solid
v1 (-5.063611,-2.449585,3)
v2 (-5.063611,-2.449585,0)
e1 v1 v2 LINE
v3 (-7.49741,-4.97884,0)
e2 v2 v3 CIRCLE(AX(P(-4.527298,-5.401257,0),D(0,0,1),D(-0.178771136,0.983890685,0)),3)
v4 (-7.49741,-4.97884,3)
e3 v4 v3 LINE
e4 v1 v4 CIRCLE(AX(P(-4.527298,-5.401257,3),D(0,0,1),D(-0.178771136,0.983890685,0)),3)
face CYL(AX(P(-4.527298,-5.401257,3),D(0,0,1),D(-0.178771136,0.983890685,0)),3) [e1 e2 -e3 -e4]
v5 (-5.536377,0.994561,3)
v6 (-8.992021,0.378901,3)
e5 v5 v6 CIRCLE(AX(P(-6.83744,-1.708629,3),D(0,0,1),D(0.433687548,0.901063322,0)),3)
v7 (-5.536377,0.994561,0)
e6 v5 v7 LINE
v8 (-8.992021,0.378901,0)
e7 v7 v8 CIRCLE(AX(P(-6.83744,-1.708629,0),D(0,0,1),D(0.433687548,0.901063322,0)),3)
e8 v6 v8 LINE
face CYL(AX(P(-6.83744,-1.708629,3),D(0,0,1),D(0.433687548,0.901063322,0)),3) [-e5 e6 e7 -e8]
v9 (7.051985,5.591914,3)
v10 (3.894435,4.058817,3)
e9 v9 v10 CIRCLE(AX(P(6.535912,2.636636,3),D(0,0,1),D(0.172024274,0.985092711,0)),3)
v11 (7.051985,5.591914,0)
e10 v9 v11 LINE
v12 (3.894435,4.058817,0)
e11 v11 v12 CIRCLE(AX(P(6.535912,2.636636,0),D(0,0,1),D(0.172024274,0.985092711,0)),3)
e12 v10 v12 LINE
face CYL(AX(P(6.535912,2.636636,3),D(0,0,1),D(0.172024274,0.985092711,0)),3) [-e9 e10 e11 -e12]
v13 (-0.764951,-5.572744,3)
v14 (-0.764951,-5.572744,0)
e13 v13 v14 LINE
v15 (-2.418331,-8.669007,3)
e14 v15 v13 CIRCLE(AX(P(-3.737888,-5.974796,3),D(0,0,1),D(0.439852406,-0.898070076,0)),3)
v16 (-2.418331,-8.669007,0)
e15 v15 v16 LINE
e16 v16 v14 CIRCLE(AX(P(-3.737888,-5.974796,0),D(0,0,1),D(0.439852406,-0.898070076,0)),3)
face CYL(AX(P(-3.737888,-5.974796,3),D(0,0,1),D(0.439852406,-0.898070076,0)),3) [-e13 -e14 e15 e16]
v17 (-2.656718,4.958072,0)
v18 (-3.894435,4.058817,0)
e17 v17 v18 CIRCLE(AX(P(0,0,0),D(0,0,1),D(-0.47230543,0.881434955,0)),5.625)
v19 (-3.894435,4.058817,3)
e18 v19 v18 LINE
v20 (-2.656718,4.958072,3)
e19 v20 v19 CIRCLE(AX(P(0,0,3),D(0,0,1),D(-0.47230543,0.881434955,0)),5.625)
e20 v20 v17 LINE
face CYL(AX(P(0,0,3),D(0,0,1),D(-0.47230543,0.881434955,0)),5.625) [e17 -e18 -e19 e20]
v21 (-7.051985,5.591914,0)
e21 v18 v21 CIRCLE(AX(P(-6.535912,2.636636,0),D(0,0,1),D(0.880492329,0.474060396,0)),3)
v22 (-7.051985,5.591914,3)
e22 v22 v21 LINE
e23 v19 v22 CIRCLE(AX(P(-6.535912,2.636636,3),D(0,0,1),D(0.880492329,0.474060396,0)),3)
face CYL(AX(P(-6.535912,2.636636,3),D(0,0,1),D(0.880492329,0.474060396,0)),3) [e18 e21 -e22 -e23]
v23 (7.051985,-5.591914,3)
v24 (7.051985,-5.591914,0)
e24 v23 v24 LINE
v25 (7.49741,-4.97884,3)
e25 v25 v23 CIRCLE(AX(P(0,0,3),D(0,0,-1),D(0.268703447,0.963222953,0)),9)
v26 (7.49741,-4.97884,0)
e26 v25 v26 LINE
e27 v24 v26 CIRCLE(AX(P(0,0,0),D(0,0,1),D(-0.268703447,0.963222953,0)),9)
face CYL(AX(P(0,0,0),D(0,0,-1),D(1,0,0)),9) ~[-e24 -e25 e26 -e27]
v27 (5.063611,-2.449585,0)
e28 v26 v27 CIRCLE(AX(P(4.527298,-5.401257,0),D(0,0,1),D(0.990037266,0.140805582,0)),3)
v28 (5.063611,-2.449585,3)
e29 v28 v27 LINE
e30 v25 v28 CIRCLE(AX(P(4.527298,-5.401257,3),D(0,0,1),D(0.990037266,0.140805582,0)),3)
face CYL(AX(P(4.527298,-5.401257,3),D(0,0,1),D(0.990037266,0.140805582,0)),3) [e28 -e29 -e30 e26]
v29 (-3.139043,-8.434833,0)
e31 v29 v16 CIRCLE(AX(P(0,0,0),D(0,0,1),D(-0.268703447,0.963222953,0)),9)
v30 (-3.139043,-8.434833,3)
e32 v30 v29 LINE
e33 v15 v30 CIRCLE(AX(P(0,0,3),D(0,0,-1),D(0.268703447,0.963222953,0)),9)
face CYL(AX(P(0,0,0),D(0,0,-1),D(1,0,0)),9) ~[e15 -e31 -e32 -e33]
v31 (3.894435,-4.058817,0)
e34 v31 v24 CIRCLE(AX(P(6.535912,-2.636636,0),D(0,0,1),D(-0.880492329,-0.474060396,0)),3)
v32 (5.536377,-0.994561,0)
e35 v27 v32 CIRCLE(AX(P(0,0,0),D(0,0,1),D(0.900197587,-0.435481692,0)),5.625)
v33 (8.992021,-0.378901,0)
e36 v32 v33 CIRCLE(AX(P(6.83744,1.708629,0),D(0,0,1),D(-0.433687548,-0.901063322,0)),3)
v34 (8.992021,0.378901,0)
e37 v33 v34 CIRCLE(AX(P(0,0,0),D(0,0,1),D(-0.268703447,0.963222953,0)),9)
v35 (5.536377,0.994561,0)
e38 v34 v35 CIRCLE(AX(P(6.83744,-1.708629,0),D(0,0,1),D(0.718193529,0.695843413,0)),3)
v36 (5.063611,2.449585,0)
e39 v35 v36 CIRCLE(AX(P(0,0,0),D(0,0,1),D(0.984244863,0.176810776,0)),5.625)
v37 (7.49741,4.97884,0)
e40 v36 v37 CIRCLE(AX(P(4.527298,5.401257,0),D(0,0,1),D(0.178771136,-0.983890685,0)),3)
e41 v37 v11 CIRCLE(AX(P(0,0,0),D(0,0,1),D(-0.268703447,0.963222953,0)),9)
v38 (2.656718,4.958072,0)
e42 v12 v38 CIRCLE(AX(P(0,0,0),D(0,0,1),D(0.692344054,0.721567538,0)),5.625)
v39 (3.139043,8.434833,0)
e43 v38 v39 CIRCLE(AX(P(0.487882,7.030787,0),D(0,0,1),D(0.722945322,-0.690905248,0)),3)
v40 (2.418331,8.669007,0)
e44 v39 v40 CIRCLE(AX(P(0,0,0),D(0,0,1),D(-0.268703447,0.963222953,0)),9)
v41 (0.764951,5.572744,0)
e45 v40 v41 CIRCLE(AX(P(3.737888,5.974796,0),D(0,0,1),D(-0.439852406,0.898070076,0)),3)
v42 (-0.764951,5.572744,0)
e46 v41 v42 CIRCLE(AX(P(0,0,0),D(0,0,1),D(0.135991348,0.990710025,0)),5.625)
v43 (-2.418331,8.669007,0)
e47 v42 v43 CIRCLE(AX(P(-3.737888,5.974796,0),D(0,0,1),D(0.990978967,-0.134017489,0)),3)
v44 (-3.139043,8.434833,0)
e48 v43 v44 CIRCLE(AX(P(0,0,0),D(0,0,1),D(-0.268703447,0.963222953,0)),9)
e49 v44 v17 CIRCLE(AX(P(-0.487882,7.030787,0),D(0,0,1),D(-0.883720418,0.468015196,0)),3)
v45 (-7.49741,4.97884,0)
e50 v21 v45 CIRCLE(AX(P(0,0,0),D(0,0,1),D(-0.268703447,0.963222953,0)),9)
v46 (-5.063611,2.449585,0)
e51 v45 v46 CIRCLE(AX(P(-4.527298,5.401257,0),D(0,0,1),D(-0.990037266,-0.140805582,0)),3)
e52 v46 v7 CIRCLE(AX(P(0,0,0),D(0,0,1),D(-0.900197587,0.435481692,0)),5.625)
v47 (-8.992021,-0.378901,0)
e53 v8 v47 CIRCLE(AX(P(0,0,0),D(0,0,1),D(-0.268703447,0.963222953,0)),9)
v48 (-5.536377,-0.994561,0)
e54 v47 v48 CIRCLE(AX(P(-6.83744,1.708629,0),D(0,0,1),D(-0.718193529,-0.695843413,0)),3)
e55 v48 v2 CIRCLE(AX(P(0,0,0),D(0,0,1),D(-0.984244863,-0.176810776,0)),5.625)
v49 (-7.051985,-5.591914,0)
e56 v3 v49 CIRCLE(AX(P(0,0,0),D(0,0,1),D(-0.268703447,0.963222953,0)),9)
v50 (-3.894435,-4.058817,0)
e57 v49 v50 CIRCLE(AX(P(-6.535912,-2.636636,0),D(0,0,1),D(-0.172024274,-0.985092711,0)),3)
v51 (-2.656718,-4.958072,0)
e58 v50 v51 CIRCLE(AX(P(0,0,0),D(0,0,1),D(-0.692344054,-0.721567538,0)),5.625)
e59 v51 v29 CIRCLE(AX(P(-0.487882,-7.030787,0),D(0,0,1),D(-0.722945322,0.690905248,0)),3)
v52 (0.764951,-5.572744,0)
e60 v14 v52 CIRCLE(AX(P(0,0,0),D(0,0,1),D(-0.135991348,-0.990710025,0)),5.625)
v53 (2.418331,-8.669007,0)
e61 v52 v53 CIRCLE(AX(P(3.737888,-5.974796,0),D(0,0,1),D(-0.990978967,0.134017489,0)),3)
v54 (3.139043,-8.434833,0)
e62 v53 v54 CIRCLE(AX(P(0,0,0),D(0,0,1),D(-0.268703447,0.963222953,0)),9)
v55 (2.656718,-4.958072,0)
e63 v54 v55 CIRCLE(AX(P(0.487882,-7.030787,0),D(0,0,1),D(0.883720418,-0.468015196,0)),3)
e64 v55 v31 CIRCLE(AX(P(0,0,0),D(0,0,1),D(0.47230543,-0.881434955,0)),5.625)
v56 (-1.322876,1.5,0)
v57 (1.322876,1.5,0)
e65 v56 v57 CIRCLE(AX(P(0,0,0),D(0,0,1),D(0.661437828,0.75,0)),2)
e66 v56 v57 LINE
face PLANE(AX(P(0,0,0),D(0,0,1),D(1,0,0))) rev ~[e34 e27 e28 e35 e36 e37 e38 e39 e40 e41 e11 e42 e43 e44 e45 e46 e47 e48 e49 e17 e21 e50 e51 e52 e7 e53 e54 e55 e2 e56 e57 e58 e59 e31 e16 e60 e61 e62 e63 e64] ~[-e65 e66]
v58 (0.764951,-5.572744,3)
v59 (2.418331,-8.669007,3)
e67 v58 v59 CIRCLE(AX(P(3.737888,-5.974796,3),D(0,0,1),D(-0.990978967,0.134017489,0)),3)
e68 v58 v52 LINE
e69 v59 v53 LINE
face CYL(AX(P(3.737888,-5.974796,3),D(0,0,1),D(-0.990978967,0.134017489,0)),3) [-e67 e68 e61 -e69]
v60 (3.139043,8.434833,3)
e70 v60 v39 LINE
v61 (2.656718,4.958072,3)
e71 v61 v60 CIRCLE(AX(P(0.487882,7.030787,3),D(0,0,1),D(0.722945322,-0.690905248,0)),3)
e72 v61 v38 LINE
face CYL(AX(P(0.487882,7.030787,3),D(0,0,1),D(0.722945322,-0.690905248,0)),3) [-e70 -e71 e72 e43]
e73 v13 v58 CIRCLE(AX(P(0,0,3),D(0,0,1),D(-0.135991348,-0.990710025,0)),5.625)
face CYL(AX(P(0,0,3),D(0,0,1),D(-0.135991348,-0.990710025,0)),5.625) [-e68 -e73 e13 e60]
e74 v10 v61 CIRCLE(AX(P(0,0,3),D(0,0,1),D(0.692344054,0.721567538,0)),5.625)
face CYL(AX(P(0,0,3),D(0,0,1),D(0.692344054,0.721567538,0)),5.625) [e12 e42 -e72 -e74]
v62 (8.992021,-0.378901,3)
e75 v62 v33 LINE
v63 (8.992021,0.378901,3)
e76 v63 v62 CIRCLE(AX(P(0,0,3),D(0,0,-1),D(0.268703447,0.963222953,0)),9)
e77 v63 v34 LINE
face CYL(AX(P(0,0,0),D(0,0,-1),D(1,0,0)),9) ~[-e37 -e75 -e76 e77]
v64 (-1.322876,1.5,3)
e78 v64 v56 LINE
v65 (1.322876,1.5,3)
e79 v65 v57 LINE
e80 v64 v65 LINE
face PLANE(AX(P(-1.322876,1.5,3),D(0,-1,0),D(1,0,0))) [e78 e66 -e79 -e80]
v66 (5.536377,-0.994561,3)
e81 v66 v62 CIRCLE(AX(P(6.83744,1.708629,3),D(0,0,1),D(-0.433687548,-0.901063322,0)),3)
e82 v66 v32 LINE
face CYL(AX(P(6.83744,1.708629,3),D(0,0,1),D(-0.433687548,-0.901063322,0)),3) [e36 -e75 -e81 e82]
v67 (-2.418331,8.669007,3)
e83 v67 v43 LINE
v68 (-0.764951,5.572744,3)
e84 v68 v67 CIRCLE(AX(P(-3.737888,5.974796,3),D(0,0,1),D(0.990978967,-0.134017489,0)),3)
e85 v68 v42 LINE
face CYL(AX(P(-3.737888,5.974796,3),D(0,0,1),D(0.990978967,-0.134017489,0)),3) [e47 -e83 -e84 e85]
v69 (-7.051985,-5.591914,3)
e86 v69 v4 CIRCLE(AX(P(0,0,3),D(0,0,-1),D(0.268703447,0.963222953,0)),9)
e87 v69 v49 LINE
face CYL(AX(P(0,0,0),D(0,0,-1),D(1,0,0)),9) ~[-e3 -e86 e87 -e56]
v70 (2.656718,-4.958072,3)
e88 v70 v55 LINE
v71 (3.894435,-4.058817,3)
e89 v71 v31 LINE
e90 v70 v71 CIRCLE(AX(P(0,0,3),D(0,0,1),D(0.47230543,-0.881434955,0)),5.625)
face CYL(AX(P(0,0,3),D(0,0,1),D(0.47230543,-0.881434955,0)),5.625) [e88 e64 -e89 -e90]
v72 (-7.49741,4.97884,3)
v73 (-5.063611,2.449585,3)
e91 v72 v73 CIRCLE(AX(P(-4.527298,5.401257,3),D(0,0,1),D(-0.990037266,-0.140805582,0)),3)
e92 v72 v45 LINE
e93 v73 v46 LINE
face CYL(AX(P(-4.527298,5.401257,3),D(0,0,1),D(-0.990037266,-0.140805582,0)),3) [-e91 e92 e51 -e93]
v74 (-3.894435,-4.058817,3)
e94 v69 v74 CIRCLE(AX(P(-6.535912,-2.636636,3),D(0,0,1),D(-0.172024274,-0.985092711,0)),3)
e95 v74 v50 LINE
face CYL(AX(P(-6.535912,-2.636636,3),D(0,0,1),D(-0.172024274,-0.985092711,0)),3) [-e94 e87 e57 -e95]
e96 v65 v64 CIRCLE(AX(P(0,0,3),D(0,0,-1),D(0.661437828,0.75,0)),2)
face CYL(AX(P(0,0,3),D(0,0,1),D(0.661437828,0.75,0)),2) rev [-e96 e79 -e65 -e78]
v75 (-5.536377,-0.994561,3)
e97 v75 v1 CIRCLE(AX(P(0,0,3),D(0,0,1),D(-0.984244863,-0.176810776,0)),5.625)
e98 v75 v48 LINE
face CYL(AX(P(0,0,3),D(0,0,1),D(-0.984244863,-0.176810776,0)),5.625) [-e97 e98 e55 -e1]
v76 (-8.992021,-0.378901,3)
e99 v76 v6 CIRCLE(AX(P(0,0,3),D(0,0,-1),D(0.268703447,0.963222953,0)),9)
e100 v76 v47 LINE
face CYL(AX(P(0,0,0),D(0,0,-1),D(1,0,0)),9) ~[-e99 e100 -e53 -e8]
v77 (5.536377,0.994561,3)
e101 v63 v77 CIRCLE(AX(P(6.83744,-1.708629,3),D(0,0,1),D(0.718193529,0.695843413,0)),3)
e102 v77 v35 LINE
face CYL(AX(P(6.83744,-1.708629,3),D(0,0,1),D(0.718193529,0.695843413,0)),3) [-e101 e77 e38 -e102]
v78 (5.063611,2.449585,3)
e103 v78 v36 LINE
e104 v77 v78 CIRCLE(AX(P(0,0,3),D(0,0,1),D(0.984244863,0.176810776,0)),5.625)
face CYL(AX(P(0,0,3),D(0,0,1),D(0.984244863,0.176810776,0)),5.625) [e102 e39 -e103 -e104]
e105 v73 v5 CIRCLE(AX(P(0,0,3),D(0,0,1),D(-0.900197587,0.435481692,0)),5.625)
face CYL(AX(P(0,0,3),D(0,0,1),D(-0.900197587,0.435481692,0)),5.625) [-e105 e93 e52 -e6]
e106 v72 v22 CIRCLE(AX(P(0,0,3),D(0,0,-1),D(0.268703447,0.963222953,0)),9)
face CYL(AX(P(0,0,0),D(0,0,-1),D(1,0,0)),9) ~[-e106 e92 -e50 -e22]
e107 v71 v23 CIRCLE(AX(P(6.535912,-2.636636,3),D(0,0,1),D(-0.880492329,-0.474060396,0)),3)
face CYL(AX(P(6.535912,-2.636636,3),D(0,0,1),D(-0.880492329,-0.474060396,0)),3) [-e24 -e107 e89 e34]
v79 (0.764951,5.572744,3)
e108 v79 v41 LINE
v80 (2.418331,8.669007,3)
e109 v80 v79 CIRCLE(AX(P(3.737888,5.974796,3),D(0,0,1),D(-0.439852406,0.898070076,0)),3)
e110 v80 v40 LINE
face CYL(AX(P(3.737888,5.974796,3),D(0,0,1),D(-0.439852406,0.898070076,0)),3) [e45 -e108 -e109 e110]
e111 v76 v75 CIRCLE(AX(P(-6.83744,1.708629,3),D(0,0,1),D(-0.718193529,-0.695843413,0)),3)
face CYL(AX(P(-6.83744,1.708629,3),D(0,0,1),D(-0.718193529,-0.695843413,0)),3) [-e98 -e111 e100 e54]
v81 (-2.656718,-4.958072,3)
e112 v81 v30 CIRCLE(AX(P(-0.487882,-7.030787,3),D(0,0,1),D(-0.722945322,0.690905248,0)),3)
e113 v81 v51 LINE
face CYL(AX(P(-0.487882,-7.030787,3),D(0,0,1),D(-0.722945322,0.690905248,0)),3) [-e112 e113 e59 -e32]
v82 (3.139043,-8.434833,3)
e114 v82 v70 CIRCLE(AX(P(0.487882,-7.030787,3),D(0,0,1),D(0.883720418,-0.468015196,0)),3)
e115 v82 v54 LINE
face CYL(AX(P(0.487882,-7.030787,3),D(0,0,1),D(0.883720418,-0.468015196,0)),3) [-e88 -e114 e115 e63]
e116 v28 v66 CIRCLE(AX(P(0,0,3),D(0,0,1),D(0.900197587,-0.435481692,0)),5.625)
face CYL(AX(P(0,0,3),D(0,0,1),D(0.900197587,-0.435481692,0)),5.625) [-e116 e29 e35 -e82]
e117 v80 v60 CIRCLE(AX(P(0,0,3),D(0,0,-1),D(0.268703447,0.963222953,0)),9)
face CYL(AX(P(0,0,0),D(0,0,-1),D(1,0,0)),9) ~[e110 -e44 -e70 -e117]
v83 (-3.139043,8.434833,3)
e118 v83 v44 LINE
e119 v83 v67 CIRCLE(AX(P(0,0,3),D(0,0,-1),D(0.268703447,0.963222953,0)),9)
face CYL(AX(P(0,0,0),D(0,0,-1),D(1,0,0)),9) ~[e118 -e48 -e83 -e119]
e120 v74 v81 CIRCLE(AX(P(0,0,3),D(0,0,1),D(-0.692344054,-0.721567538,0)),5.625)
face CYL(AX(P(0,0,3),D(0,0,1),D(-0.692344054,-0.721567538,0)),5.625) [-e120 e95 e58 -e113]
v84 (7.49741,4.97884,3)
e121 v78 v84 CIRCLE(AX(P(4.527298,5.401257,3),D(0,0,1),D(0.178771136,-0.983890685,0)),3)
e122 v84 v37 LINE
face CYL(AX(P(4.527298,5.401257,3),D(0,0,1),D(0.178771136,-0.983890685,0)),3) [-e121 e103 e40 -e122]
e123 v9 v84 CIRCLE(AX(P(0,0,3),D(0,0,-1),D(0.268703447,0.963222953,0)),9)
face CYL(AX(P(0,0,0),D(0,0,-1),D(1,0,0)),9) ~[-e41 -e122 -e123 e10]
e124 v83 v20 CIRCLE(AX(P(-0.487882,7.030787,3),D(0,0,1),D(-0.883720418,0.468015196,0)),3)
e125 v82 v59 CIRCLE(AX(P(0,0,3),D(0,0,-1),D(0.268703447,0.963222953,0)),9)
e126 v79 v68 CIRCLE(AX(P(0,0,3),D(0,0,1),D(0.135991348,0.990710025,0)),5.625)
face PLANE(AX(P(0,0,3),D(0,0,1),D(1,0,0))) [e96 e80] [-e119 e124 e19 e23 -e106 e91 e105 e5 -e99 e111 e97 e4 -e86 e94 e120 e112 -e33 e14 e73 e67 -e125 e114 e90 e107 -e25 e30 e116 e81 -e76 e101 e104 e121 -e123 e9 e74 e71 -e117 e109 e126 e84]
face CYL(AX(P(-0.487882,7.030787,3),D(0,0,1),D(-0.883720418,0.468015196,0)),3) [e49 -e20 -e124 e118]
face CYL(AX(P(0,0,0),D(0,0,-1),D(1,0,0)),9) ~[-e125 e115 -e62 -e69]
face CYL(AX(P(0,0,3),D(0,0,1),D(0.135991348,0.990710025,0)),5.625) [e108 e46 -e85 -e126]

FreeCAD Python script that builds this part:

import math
import FreeCAD as App
import Part
import Sketcher

V = App.Vector
Q = App.Units.Quantity

doc = App.newDocument("Part")
params = doc.addObject("Spreadsheet::Sheet", "Params")
for row, (alias, value) in enumerate([
    ("sketch1_diameter", "18 mm"),
    ("pad1_length", "3 mm"),
    ("sketch2_radius", "9 mm"),
    ("sketch2_radius2", "3 mm"),
    ("sketch3_radius", "2 mm"),
], start=1):
    params.set(f"A{row}", alias)
    params.set(f"B{row}", "=" + value)
    params.setAlias(f"B{row}", alias)

body = doc.addObject("PartDesign::Body", "Body")

# Sketch on XY plane
sketch1 = doc.addObject("Sketcher::SketchObject", "Sketch")
body.addObject(sketch1)
sketch1.AttachmentSupport = (doc.XY_Plane, [""])
sketch1.MapMode = "FlatFace"
sketch1.addGeometry(Part.Circle(V(0, 0, 0), V(0, 0, 1), 9), False)
sketch1.addConstraint(Sketcher.Constraint("Coincident", 0, 3, -1, 1))
sketch1.addConstraint(Sketcher.Constraint("Diameter", 0, Q("18 mm")))
sketch1.setExpression("Constraints[1]", "Params.sketch1_diameter")
pad1 = doc.addObject("PartDesign::Pad", "Pad")
body.addObject(pad1)
pad1.Profile = sketch1
pad1.setExpression("Length", "Params.pad1_length")

# Sketch on XY plane
sketch2 = doc.addObject("Sketcher::SketchObject", "Sketch001")
body.addObject(sketch2)
sketch2.AttachmentSupport = (doc.XY_Plane, [""])
sketch2.MapMode = "FlatFace"
sketch2.AttachmentOffset = App.Placement(V(0, 0, 3), App.Rotation())
sketch2.addGeometry(Part.ArcOfCircle(Part.Circle(V(0, 0, 0), V(0, 0, 1), 9), math.radians(74), math.radians(106)), False)
sketch2.addGeometry(Part.ArcOfCircle(Part.Circle(V(-3.7, 6, 0), V(0, 0, 1), 3), math.radians(-8), math.radians(64)), False)
sketch2.addGeometry(Part.ArcOfCircle(Part.Circle(V(0, 0, 0), V(0, 0, 1), 5.6), math.radians(82.18), math.radians(97.82)), False)
sketch2.addGeometry(Part.ArcOfCircle(Part.Circle(V(3.7, 6, 0), V(0, 0, 1), 3), math.radians(116), math.radians(188)), False)
sketch2.addConstraint(Sketcher.Constraint("Coincident", 0, 2, 1, 2))
sketch2.addConstraint(Sketcher.Constraint("Coincident", 1, 1, 2, 2))
sketch2.addConstraint(Sketcher.Constraint("Coincident", 2, 1, 3, 2))
sketch2.addConstraint(Sketcher.Constraint("Coincident", 3, 1, 0, 1))
sketch2.addConstraint(Sketcher.Constraint("Coincident", 0, 3, -1, 1))
sketch2.addConstraint(Sketcher.Constraint("Coincident", 2, 3, -1, 1))
sketch2.addConstraint(Sketcher.Constraint("Equal", 1, 3))
sketch2.addConstraint(Sketcher.Constraint("Symmetric", 1, 3, 3, 3, -2))
sketch2.addConstraint(Sketcher.Constraint("Radius", 0, Q("9 mm")))
sketch2.addConstraint(Sketcher.Constraint("Radius", 1, Q("3 mm")))
sketch2.addConstraint(Sketcher.Constraint("Radius", 2, Q("5.625 mm")))
sketch2.addConstraint(Sketcher.Constraint("DistanceX", 1, 3, -1, 1, Q("3.737888 mm")))
sketch2.addConstraint(Sketcher.Constraint("DistanceX", 0, 2, -1, 1, Q("2.418331 mm")))
sketch2.setExpression("Constraints[8]", "Params.sketch2_radius")
sketch2.setExpression("Constraints[9]", "Params.sketch2_radius2")
pocket1 = doc.addObject("PartDesign::Pocket", "Pocket")
body.addObject(pocket1)
pocket1.Profile = sketch2
pocket1.Type = "ThroughAll"
doc.recompute()

polarpattern = doc.addObject("PartDesign::PolarPattern", "PolarPattern")
body.addObject(polarpattern)
polarpattern.Originals = [pocket1]
polarpattern.Axis = (doc.Z_Axis, [""])
polarpattern.Angle = 360
polarpattern.Occurrences = 10
body.Tip = polarpattern

# Sketch on XY plane
sketch3 = doc.addObject("Sketcher::SketchObject", "Sketch002")
body.addObject(sketch3)
sketch3.AttachmentSupport = (doc.XY_Plane, [""])
sketch3.MapMode = "FlatFace"
sketch3.AttachmentOffset = App.Placement(V(0, 0, 3), App.Rotation())
sketch3.addGeometry(Part.LineSegment(V(1.3, 1.5, 0), V(-1.3, 1.5, 0)), False)
sketch3.addGeometry(Part.ArcOfCircle(Part.Circle(V(0, 0, 0), V(0, 0, 1), 2), math.radians(131), math.radians(409)), False)
sketch3.addConstraint(Sketcher.Constraint("Coincident", 0, 1, 1, 2))
sketch3.addConstraint(Sketcher.Constraint("Coincident", 1, 1, 0, 2))
sketch3.addConstraint(Sketcher.Constraint("Horizontal", 0))
sketch3.addConstraint(Sketcher.Constraint("Coincident", 1, 3, -1, 1))
sketch3.addConstraint(Sketcher.Constraint("Radius", 1, Q("2 mm")))
sketch3.addConstraint(Sketcher.Constraint("DistanceY", -1, 1, 0, 1, Q("1.5 mm")))
sketch3.setExpression("Constraints[4]", "Params.sketch3_radius")
pocket2 = doc.addObject("PartDesign::Pocket", "Pocket001")
body.addObject(pocket2)
pocket2.Profile = sketch3
pocket2.Type = "ThroughAll"

doc.recompute()
